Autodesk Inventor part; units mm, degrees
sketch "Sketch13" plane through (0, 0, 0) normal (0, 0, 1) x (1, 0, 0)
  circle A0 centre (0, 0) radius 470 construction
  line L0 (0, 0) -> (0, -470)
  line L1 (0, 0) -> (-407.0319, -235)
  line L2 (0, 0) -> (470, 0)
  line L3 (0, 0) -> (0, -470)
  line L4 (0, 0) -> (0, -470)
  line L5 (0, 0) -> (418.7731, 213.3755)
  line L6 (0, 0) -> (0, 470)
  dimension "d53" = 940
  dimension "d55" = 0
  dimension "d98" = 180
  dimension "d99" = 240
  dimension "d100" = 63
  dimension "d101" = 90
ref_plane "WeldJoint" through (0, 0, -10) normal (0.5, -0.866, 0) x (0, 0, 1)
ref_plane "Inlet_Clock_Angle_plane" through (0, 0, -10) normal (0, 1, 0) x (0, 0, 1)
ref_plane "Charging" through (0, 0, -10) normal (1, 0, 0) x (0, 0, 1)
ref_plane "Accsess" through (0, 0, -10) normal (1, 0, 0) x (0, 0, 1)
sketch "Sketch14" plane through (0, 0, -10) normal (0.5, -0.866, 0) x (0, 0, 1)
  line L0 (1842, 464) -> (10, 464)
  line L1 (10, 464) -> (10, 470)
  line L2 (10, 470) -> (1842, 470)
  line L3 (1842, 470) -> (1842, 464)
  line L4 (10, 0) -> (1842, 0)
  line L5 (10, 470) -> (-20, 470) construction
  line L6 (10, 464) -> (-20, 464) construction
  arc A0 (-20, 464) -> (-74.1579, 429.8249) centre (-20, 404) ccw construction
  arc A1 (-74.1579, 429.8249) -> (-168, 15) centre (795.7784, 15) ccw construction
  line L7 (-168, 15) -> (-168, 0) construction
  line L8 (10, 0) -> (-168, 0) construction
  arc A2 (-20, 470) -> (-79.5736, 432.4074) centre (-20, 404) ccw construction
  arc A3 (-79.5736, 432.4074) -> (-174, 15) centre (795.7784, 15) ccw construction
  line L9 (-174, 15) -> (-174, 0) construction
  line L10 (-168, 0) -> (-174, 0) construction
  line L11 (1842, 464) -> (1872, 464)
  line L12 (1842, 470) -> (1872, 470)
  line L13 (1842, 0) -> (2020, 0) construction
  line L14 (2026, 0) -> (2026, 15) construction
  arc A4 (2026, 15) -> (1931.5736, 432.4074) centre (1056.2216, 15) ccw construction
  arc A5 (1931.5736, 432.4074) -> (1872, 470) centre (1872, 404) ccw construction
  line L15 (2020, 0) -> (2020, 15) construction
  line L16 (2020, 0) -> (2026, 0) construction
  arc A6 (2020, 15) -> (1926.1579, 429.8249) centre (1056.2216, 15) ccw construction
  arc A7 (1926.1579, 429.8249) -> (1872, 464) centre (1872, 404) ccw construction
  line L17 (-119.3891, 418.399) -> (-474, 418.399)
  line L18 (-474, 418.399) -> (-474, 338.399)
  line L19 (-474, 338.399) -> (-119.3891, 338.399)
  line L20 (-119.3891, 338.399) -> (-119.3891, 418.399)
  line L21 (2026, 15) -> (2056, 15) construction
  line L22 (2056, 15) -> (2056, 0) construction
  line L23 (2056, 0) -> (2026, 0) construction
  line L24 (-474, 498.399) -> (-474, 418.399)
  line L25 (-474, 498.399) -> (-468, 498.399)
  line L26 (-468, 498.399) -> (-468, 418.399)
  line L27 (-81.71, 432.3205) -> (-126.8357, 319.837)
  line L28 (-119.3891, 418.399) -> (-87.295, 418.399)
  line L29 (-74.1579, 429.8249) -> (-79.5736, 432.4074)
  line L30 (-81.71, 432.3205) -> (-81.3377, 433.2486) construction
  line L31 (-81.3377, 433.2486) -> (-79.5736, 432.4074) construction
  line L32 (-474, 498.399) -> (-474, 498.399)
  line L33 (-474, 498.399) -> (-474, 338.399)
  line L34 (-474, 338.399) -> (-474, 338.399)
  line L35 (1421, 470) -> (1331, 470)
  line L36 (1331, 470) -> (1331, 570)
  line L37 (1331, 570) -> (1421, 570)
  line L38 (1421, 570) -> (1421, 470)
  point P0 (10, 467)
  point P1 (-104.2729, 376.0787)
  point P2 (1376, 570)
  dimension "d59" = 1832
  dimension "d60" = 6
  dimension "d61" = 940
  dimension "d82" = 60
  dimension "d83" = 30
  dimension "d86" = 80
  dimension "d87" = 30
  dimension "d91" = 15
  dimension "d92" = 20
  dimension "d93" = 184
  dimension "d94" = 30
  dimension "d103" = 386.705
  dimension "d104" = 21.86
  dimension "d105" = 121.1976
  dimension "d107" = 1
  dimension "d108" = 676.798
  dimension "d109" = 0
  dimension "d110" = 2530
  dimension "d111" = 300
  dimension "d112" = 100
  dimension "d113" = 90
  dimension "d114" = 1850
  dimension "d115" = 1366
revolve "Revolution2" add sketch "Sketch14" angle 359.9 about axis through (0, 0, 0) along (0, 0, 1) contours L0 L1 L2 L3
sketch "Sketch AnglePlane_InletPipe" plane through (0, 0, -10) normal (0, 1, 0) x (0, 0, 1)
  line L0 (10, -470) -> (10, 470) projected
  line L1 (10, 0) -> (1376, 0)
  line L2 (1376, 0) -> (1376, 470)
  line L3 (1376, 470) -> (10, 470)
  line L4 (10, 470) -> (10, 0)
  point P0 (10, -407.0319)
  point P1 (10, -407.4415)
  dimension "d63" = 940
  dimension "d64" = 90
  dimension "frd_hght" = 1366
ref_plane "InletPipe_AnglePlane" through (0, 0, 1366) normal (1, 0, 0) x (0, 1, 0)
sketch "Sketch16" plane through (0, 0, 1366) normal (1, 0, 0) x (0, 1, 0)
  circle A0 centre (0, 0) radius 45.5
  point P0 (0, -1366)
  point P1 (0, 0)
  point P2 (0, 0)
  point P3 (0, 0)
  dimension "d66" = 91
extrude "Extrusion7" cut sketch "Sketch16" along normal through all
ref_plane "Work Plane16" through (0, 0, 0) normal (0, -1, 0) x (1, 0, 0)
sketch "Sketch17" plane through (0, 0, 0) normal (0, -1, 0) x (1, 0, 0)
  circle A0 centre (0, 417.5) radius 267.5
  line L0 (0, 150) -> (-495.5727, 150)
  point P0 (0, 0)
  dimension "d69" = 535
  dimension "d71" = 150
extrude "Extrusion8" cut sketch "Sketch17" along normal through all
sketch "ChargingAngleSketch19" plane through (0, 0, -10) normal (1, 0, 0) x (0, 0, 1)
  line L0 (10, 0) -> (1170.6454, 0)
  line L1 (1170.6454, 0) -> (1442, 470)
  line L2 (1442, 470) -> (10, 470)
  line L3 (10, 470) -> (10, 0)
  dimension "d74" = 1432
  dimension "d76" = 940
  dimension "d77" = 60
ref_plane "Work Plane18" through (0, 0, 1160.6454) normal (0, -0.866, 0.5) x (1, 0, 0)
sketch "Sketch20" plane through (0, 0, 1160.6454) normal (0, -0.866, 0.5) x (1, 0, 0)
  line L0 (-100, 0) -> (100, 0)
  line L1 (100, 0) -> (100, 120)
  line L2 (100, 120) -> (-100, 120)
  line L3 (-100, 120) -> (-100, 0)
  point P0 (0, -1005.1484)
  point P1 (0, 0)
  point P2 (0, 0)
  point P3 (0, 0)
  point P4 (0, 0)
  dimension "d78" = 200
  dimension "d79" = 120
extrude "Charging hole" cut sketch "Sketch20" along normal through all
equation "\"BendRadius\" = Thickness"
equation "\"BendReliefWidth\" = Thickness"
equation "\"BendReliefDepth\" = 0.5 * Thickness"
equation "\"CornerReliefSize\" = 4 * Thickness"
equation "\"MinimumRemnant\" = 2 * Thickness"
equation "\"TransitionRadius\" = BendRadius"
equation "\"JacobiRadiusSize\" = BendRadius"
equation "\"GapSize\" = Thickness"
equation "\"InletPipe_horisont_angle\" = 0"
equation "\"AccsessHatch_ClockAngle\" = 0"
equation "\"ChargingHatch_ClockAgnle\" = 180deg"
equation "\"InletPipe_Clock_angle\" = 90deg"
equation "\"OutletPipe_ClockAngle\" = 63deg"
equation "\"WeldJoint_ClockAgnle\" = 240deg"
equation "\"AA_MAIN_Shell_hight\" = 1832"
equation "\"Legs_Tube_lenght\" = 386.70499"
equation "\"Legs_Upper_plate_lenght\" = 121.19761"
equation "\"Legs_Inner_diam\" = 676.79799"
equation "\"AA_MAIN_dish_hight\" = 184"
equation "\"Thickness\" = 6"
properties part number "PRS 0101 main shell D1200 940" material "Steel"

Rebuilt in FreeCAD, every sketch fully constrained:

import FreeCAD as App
import Part
import Sketcher

V = App.Vector


def add_polygon(sketch, points):
    """Adds a closed chain of lines whose ends are joined by coincident constraints."""
    first, n = sketch.GeometryCount, len(points)
    for a, b in zip(points, points[1:] + points[:1]):
        sketch.addGeometry(Part.LineSegment(App.Vector(*a, 0), App.Vector(*b, 0)), False)
    for i in range(n):
        sketch.addConstraint(Sketcher.Constraint("Coincident", first + i, 2, first + (i + 1) % n, 1))

doc = App.newDocument("Part")
body = doc.addObject("PartDesign::Body", "Body")

# Sketch on an angled plane
sketch1 = body.newObject("Sketcher::SketchObject", "Sketch")
sketch1.Placement = App.Placement(V(0, 0, -10), App.Rotation(V(0, 0, 1), V(-0.866025404, -0.5, 0), V(0.5, -0.866025404, 0), "ZXY"))
add_polygon(sketch1, [(10, 464), (1842, 464), (1842, 470), (10, 470)])  # lines 0-3
sketch1.addConstraint(Sketcher.Constraint("Horizontal", 0))
sketch1.addConstraint(Sketcher.Constraint("Vertical", 1))
sketch1.addConstraint(Sketcher.Constraint("Horizontal", 2))
sketch1.addConstraint(Sketcher.Constraint("Vertical", 3))
sketch1.addConstraint(Sketcher.Constraint("DistanceX", 0, 1, 0, 2, 1832.0))
sketch1.addConstraint(Sketcher.Constraint("DistanceY", 1, 1, 1, 2, 6.0))
sketch1.addConstraint(Sketcher.Constraint("DistanceX", -1, 1, 0, 2, 1842.0))
sketch1.addConstraint(Sketcher.Constraint("DistanceY", -1, 1, 0, 2, 464.0))
revolution = body.newObject("PartDesign::Revolution", "Revolution")
revolution.Profile = sketch1
revolution.ReferenceAxis = (sketch1, ["H_Axis"])
revolution.Angle = 359.9

# Sketch on YZ plane
sketch2 = body.newObject("Sketcher::SketchObject", "Sketch001")
sketch2.AttachmentSupport = (doc.getObject("YZ_Plane"), [""])
sketch2.MapMode = "FlatFace"
sketch2.addGeometry(Part.Circle(V(0, 1366, 0), V(0, 0, 1), 46), False)
sketch2.addConstraint(Sketcher.Constraint("PointOnObject", 0, 3, -2))
sketch2.addConstraint(Sketcher.Constraint("Diameter", 0, 91.0))
sketch2.addConstraint(Sketcher.Constraint("DistanceY", -1, 1, 0, 3, 1366.0))
pocket1 = body.newObject("PartDesign::Pocket", "Pocket")
pocket1.Profile = sketch2
pocket1.Type = "ThroughAll"
pocket1.Reversed = True

# Sketch on XZ plane
sketch3 = body.newObject("Sketcher::SketchObject", "Sketch002")
sketch3.AttachmentSupport = (doc.getObject("XZ_Plane"), [""])
sketch3.MapMode = "FlatFace"
sketch3.addGeometry(Part.Circle(V(0, 418, 0), V(0, 0, 1), 268), False)
sketch3.addConstraint(Sketcher.Constraint("PointOnObject", 0, 3, -2))
sketch3.addConstraint(Sketcher.Constraint("Diameter", 0, 535.0))
sketch3.addConstraint(Sketcher.Constraint("DistanceY", -1, 1, 0, 3, 417.5))
pocket2 = body.newObject("PartDesign::Pocket", "Pocket001")
pocket2.Profile = sketch3
pocket2.Type = "ThroughAll"
pocket2.Reversed = True

# Sketch on an angled plane
sketch4 = body.newObject("Sketcher::SketchObject", "Sketch003")
sketch4.Placement = App.Placement(V(0, 0, 1160.6454), App.Rotation(V(1, 0, 0), V(0, 0.5, 0.866025404), V(0, -0.866025404, 0.5), "ZXY"))
add_polygon(sketch4, [(-100, 120), (-100, 0), (100, 0), (100, 120)])  # lines 0-3
sketch4.addConstraint(Sketcher.Constraint("Vertical", 0))
sketch4.addConstraint(Sketcher.Constraint("Horizontal", 1))
sketch4.addConstraint(Sketcher.Constraint("Vertical", 2))
sketch4.addConstraint(Sketcher.Constraint("Horizontal", 3))
sketch4.addConstraint(Sketcher.Constraint("Symmetric", 0, 2, 1, 2, -1, 1))
sketch4.addConstraint(Sketcher.Constraint("DistanceX", 1, 1, 1, 2, 200.0))
sketch4.addConstraint(Sketcher.Constraint("DistanceY", 0, 2, 0, 1, 120.0))
pocket3 = body.newObject("PartDesign::Pocket", "Pocket002")
pocket3.Profile = sketch4
pocket3.Type = "ThroughAll"
pocket3.Reversed = True

doc.recompute()
